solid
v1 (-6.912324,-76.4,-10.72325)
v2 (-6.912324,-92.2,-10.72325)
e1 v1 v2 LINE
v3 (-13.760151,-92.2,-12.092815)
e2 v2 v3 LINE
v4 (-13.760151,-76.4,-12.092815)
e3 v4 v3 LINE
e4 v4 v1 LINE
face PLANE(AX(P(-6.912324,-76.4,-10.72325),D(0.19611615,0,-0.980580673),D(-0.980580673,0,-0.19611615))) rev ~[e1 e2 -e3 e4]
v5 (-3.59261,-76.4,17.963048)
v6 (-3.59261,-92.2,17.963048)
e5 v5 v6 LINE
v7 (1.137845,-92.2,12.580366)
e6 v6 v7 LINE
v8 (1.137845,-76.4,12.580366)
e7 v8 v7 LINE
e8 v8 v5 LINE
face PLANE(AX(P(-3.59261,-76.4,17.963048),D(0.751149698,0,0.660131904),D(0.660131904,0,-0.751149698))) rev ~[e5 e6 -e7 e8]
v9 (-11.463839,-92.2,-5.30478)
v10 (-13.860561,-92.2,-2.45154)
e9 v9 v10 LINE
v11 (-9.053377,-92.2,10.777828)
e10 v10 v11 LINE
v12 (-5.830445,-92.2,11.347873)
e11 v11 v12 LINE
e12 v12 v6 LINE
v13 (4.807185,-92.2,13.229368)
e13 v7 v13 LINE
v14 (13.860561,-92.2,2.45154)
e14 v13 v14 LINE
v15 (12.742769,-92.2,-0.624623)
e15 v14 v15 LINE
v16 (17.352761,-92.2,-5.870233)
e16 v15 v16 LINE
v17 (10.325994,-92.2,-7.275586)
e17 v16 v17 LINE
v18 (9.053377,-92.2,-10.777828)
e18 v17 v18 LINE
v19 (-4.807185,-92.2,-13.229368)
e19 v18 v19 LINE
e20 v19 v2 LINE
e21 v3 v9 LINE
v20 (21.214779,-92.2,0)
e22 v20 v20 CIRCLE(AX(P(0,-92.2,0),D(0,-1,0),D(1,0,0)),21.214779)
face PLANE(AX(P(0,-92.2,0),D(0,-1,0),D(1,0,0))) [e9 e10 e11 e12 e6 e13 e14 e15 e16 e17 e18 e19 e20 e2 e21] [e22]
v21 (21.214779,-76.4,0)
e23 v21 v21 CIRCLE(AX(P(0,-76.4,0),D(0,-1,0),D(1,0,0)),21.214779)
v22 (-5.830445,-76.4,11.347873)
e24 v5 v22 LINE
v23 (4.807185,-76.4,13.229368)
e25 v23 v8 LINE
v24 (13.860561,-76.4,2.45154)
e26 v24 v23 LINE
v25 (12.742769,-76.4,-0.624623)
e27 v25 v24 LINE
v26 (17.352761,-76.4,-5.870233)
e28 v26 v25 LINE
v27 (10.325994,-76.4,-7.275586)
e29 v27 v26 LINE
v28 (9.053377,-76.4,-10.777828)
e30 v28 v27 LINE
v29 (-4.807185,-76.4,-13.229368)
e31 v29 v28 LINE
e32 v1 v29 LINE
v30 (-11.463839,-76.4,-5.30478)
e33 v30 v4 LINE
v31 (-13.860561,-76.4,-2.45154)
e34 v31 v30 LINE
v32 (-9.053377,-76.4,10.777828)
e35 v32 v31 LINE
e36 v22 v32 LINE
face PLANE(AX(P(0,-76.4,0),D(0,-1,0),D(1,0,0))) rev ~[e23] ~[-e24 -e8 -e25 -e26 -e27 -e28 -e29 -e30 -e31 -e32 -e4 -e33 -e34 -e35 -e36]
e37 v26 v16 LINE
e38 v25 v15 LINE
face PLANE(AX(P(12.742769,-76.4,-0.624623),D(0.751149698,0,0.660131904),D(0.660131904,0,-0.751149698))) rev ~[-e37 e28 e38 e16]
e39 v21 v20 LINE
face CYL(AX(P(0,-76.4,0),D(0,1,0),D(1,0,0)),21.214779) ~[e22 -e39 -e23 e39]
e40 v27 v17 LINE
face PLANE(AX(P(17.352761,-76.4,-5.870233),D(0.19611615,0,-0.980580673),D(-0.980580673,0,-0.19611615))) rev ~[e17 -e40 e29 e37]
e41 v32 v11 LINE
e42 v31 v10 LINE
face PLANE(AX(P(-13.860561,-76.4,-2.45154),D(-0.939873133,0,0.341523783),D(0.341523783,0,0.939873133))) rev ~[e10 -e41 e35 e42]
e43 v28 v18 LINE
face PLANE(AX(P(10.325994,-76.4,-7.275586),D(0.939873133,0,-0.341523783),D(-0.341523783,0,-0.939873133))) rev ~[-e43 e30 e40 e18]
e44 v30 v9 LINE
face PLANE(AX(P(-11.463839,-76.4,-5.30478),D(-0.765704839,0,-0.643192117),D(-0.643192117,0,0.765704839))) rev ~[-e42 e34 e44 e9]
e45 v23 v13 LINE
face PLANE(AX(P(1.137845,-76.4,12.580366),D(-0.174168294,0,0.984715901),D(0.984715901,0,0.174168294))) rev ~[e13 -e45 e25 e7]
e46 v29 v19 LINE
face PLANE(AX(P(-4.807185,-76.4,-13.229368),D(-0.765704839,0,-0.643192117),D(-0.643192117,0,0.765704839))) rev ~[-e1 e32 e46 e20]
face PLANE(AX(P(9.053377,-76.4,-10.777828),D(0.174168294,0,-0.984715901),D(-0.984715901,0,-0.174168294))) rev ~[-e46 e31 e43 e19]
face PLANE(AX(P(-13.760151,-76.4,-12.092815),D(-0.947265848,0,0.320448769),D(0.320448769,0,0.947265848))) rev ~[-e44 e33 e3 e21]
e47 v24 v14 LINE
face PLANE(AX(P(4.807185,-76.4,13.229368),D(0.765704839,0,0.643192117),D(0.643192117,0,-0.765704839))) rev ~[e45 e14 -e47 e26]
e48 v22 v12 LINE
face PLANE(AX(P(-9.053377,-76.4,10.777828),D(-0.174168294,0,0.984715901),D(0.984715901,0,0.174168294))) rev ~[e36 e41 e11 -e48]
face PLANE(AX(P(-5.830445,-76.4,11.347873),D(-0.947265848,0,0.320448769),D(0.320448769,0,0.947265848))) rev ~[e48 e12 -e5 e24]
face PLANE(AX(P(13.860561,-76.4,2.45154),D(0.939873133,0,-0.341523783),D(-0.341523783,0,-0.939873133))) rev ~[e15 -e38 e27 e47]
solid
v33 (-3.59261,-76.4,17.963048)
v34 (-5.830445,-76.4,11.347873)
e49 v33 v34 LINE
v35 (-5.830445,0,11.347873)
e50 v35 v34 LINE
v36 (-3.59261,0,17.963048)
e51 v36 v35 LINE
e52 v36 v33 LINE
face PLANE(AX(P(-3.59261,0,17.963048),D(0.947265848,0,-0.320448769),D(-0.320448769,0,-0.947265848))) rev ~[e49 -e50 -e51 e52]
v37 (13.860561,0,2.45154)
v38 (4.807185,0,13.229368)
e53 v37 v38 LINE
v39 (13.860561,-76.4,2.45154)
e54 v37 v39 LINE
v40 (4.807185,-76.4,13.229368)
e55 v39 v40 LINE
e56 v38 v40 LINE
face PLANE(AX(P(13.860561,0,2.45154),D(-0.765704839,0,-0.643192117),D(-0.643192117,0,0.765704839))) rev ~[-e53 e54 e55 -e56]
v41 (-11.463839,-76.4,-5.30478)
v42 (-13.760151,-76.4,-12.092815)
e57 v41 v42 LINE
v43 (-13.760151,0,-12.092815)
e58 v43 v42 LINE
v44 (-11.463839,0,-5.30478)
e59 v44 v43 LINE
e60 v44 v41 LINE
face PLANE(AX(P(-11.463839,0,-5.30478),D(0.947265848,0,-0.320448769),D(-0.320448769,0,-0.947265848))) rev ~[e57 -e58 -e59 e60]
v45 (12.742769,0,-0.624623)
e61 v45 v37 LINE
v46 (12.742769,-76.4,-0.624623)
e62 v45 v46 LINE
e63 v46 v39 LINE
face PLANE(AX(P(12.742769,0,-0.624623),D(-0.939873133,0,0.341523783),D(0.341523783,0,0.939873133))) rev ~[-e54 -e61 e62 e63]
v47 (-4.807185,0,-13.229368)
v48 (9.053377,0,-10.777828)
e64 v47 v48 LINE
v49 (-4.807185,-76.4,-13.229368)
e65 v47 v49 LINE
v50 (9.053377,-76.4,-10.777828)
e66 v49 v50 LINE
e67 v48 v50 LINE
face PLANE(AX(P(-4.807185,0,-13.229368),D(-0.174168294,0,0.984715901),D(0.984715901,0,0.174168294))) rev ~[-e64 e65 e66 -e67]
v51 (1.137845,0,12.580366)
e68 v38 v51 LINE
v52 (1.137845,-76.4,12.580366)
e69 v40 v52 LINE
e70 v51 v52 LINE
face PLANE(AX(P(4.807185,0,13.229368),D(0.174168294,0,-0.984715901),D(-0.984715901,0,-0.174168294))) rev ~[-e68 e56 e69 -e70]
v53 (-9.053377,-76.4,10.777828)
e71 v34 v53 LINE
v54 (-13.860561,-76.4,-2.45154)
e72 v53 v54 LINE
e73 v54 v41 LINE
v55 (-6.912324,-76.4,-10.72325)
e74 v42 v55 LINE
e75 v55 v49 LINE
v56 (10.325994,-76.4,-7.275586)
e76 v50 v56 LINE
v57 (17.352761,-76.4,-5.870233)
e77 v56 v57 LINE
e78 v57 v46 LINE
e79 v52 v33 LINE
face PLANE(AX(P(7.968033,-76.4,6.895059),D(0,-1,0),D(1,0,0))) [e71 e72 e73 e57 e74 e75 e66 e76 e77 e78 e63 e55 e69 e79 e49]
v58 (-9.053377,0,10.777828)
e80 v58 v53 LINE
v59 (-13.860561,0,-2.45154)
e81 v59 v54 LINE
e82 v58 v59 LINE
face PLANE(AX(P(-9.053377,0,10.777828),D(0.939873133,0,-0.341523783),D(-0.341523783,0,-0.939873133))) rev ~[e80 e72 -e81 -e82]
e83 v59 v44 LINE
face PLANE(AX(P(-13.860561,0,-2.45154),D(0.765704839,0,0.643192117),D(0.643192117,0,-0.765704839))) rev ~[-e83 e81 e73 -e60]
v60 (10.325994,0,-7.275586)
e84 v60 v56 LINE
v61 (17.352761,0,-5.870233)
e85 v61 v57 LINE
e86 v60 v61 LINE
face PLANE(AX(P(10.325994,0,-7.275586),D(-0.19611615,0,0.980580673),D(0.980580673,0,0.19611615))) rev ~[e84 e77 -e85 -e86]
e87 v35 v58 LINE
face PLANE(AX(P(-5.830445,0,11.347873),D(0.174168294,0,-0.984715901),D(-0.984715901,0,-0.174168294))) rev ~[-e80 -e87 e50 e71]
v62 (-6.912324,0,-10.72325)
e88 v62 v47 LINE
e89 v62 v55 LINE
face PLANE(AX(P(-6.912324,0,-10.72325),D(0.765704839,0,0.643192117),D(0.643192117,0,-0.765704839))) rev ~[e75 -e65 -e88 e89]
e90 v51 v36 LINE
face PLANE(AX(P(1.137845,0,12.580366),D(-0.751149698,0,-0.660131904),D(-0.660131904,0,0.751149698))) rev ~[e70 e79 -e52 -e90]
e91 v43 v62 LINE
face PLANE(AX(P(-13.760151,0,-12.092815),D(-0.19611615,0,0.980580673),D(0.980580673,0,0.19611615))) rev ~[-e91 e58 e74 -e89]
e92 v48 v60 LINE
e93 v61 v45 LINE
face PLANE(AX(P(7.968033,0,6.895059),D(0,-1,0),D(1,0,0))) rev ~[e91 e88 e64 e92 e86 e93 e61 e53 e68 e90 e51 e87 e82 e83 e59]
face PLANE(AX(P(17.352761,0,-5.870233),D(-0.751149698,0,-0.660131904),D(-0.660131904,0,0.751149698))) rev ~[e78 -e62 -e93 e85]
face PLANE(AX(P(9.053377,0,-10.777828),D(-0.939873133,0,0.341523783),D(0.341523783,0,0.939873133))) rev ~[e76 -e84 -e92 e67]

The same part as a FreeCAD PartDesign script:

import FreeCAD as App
import Part
import Sketcher

V = App.Vector

doc = App.newDocument("Part")
params = doc.addObject("Spreadsheet::Sheet", "Params")
for row, (alias, value) in enumerate([
    ("pad1_length", "76.4 mm"),
    ("pad2_length", "15.8 mm"),
], start=1):
    params.set(f"A{row}", alias)
    params.set(f"B{row}", "=" + value)
    params.setAlias(f"B{row}", alias)

body = doc.addObject("PartDesign::Body", "Body")
body.AllowCompound = True

# Sketch on XZ plane
sketch1 = body.newObject("Sketcher::SketchObject", "Sketch")
sketch1.AttachmentSupport = (doc.getObject("XZ_Plane"), [""])
sketch1.MapMode = "FlatFace"
sketch1.addGeometry([
    Part.LineSegment(V(4.807185, 13.229368, 0), V(1.137845, 12.580366, 0)),  # 0
    Part.LineSegment(V(1.137845, 12.580366, 0), V(-3.59261, 17.963048, 0)),  # 1
    Part.LineSegment(V(-3.59261, 17.963048, 0), V(-5.830445, 11.347873, 0)),  # 2
    Part.LineSegment(V(-5.830445, 11.347873, 0), V(-9.053377, 10.777828, 0)),  # 3
    Part.LineSegment(V(-9.053377, 10.777828, 0), V(-13.860561, -2.45154, 0)),  # 4
    Part.LineSegment(V(-13.860561, -2.45154, 0), V(-11.463839, -5.30478, 0)),  # 5
    Part.LineSegment(V(-11.463839, -5.30478, 0), V(-13.760151, -12.092815, 0)),  # 6
    Part.LineSegment(V(-13.760151, -12.092815, 0), V(-6.912324, -10.72325, 0)),  # 7
    Part.LineSegment(V(-6.912324, -10.72325, 0), V(-4.807185, -13.229368, 0)),  # 8
    Part.LineSegment(V(-4.807185, -13.229368, 0), V(9.053377, -10.777828, 0)),  # 9
    Part.LineSegment(V(9.053377, -10.777828, 0), V(10.325994, -7.275586, 0)),  # 10
    Part.LineSegment(V(10.325994, -7.275586, 0), V(17.352761, -5.870233, 0)),  # 11
    Part.LineSegment(V(17.352761, -5.870233, 0), V(12.742769, -0.624623, 0)),  # 12
    Part.LineSegment(V(12.742769, -0.624623, 0), V(13.860561, 2.45154, 0)),  # 13
    Part.LineSegment(V(13.860561, 2.45154, 0), V(4.807185, 13.229368, 0)),  # 14
], False)
sketch1.addConstraint([
    Sketcher.Constraint("Coincident", 0, 2, 1, 1),
    Sketcher.Constraint("Coincident", 1, 2, 2, 1),
    Sketcher.Constraint("Coincident", 2, 2, 3, 1),
    Sketcher.Constraint("Coincident", 3, 2, 4, 1),
    Sketcher.Constraint("Coincident", 4, 2, 5, 1),
    Sketcher.Constraint("Coincident", 5, 2, 6, 1),
    Sketcher.Constraint("Coincident", 6, 2, 7, 1),
    Sketcher.Constraint("Coincident", 7, 2, 8, 1),
    Sketcher.Constraint("Coincident", 8, 2, 9, 1),
    Sketcher.Constraint("Coincident", 9, 2, 10, 1),
    Sketcher.Constraint("Coincident", 10, 2, 11, 1),
    Sketcher.Constraint("Coincident", 11, 2, 12, 1),
    Sketcher.Constraint("Coincident", 12, 2, 13, 1),
    Sketcher.Constraint("Coincident", 13, 2, 14, 1),
    Sketcher.Constraint("Coincident", 14, 2, 0, 1),
    Sketcher.Constraint("Symmetric", 3, 2, 9, 2, -1, 1),
    Sketcher.Constraint("Symmetric", 4, 2, 13, 2, -1, 1),
    Sketcher.Constraint("Symmetric", 8, 2, 14, 2, -1, 1),
    Sketcher.Constraint("Parallel", 0, 3),
    Sketcher.Constraint("Parallel", 2, 6),
    Sketcher.Constraint("Parallel", 5, 8),
    Sketcher.Constraint("Parallel", 3, 9),
    Sketcher.Constraint("Parallel", 4, 10),
    Sketcher.Constraint("Parallel", 7, 11),
    Sketcher.Constraint("Parallel", 1, 12),
    Sketcher.Constraint("Parallel", 10, 13),
    Sketcher.Constraint("Parallel", 8, 14),
    Sketcher.Constraint("Equal", 0, 5),
    Sketcher.Constraint("Equal", 1, 6),
    Sketcher.Constraint("Equal", 2, 7),
    Sketcher.Constraint("Equal", 3, 8),
    Sketcher.Constraint("Equal", 4, 9),
    Sketcher.Constraint("Equal", 5, 10),
    Sketcher.Constraint("Equal", 6, 11),
    Sketcher.Constraint("Equal", 7, 12),
    Sketcher.Constraint("Equal", 8, 13),
    Sketcher.Constraint("Equal", 9, 14),
    Sketcher.Constraint("DistanceX", 7, 2, 9, 2, 15.965701),
    Sketcher.Constraint("DistanceY", 11, 2, 0, 2, 18.450599),
    Sketcher.Constraint("DistanceX", 13, 2, 11, 2, 3.4922),
    Sketcher.Constraint("Distance", 2, 6.98344),
    Sketcher.Constraint("DistanceX", 1, 2, -1, 1, 3.59261),
])
pad1 = body.newObject("PartDesign::Pad", "Pad")
pad1.Profile = sketch1
pad1.setExpression("Length", "Params.pad1_length")

# Sketch on XZ plane
sketch2 = body.newObject("Sketcher::SketchObject", "Sketch001")
sketch2.AttachmentSupport = (doc.getObject("XZ_Plane"), [""])
sketch2.MapMode = "FlatFace"
sketch2.AttachmentOffset = App.Placement(V(0, 0, 76.4), App.Rotation())
sketch2.addGeometry([
    Part.Circle(V(0, 0, 0), V(0, 0, 1), 21.214779),  # 0
    Part.LineSegment(V(1.137845, 12.580366, 0), V(4.807185, 13.229368, 0)),  # 1
    Part.LineSegment(V(4.807185, 13.229368, 0), V(13.860561, 2.45154, 0)),  # 2
    Part.LineSegment(V(13.860561, 2.45154, 0), V(12.742769, -0.624623, 0)),  # 3
    Part.LineSegment(V(12.742769, -0.624623, 0), V(17.352761, -5.870233, 0)),  # 4
    Part.LineSegment(V(17.352761, -5.870233, 0), V(10.325994, -7.275586, 0)),  # 5
    Part.LineSegment(V(10.325994, -7.275586, 0), V(9.053377, -10.777828, 0)),  # 6
    Part.LineSegment(V(9.053377, -10.777828, 0), V(-4.807185, -13.229368, 0)),  # 7
    Part.LineSegment(V(-4.807185, -13.229368, 0), V(-6.912324, -10.72325, 0)),  # 8
    Part.LineSegment(V(-6.912324, -10.72325, 0), V(-13.760151, -12.092815, 0)),  # 9
    Part.LineSegment(V(-13.760151, -12.092815, 0), V(-11.463839, -5.30478, 0)),  # 10
    Part.LineSegment(V(-11.463839, -5.30478, 0), V(-13.860561, -2.45154, 0)),  # 11
    Part.LineSegment(V(-13.860561, -2.45154, 0), V(-9.053377, 10.777828, 0)),  # 12
    Part.LineSegment(V(-9.053377, 10.777828, 0), V(-5.830445, 11.347873, 0)),  # 13
    Part.LineSegment(V(-5.830445, 11.347873, 0), V(-3.59261, 17.963048, 0)),  # 14
    Part.LineSegment(V(-3.59261, 17.963048, 0), V(1.137845, 12.580366, 0)),  # 15
], False)
sketch2.addConstraint([
    Sketcher.Constraint("Coincident", 1, 2, 2, 1),
    Sketcher.Constraint("Coincident", 2, 2, 3, 1),
    Sketcher.Constraint("Coincident", 3, 2, 4, 1),
    Sketcher.Constraint("Coincident", 4, 2, 5, 1),
    Sketcher.Constraint("Coincident", 5, 2, 6, 1),
    Sketcher.Constraint("Coincident", 6, 2, 7, 1),
    Sketcher.Constraint("Coincident", 7, 2, 8, 1),
    Sketcher.Constraint("Coincident", 8, 2, 9, 1),
    Sketcher.Constraint("Coincident", 9, 2, 10, 1),
    Sketcher.Constraint("Coincident", 10, 2, 11, 1),
    Sketcher.Constraint("Coincident", 11, 2, 12, 1),
    Sketcher.Constraint("Coincident", 12, 2, 13, 1),
    Sketcher.Constraint("Coincident", 13, 2, 14, 1),
    Sketcher.Constraint("Coincident", 14, 2, 15, 1),
    Sketcher.Constraint("Coincident", 15, 2, 1, 1),
    Sketcher.Constraint("Coincident", 0, 3, -1, 1),
    Sketcher.Constraint("Symmetric", 1, 2, 7, 2, -1, 1),
    Sketcher.Constraint("Symmetric", 2, 2, 11, 2, -1, 1),
    Sketcher.Constraint("Symmetric", 6, 2, 12, 2, -1, 1),
    Sketcher.Constraint("Parallel", 3, 6),
    Sketcher.Constraint("Parallel", 1, 7),
    Sketcher.Constraint("Parallel", 2, 8),
    Sketcher.Constraint("Parallel", 5, 9),
    Sketcher.Constraint("Parallel", 8, 11),
    Sketcher.Constraint("Parallel", 6, 12),
    Sketcher.Constraint("Parallel", 7, 13),
    Sketcher.Constraint("Parallel", 10, 14),
    Sketcher.Constraint("Parallel", 4, 15),
    Sketcher.Constraint("Equal", 1, 6),
    Sketcher.Constraint("Equal", 2, 7),
    Sketcher.Constraint("Equal", 3, 8),
    Sketcher.Constraint("Equal", 4, 9),
    Sketcher.Constraint("Equal", 5, 10),
    Sketcher.Constraint("Equal", 6, 11),
    Sketcher.Constraint("Equal", 7, 12),
    Sketcher.Constraint("Equal", 8, 13),
    Sketcher.Constraint("Equal", 9, 14),
    Sketcher.Constraint("Equal", 10, 15),
    Sketcher.Constraint("Diameter", 0, 42.429558),
    Sketcher.Constraint("DistanceX", 2, 2, 4, 2, 3.4922),
    Sketcher.Constraint("DistanceY", 4, 2, 1, 2, 19.099601),
    Sketcher.Constraint("DistanceX", 8, 2, 6, 2, 15.965701),
    Sketcher.Constraint("Distance", 4, 6.98344),
    Sketcher.Constraint("DistanceY", -1, 1, 1, 2, 13.229368),
])
pad2 = body.newObject("PartDesign::Pad", "Pad001")
pad2.Profile = sketch2
pad2.setExpression("Length", "Params.pad2_length")

doc.recompute()
